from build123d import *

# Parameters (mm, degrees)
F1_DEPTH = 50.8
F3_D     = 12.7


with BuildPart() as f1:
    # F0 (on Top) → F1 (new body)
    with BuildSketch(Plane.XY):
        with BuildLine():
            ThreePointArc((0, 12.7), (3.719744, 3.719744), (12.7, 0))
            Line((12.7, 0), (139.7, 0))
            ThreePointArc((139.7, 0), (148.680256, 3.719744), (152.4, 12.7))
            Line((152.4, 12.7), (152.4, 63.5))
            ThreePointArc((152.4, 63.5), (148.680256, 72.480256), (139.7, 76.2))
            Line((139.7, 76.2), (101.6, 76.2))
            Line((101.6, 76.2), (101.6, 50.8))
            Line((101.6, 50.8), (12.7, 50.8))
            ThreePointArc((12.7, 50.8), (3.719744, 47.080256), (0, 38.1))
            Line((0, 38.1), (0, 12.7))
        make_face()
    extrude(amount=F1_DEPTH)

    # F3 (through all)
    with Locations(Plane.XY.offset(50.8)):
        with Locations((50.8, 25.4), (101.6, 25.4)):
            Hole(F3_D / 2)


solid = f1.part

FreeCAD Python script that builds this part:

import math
import FreeCAD as App
import Part
import Sketcher

V = App.Vector
Q = App.Units.Quantity

doc = App.newDocument("Part")
body = doc.addObject("PartDesign::Body", "Body")

# Sketch on XY plane
sketch1 = doc.addObject("Sketcher::SketchObject", "Sketch")
body.addObject(sketch1)
sketch1.AttachmentSupport = (doc.XY_Plane, [""])
sketch1.MapMode = "FlatFace"
sketch1.addGeometry([
    Part.ArcOfCircle(Part.Circle(V(13, 13, 0), V(0, 0, 1), 13), math.radians(-180), math.radians(-90)),  # 0
    Part.LineSegment(V(13, 0, 0), V(140, 0, 0)),  # 1
    Part.ArcOfCircle(Part.Circle(V(140, 13, 0), V(0, 0, 1), 13), math.radians(-90), math.radians(0)),  # 2
    Part.LineSegment(V(152, 13, 0), V(152, 64, 0)),  # 3
    Part.ArcOfCircle(Part.Circle(V(140, 63, 0), V(0, 0, 1), 13), math.radians(0), math.radians(90)),  # 4
    Part.LineSegment(V(140, 76, 0), V(102, 76, 0)),  # 5
    Part.LineSegment(V(102, 76, 0), V(102, 51, 0)),  # 6
    Part.LineSegment(V(102, 51, 0), V(13, 51, 0)),  # 7
    Part.ArcOfCircle(Part.Circle(V(13, 38, 0), V(0, 0, 1), 13), math.radians(90), math.radians(180)),  # 8
    Part.LineSegment(V(0, 38, 0), V(0, 13, 0)),  # 9
], False)
sketch1.addConstraint([
    Sketcher.Constraint("Tangent", 0, 2, 1, 1),
    Sketcher.Constraint("Tangent", 1, 2, 2, 1),
    Sketcher.Constraint("Tangent", 2, 2, 3, 1),
    Sketcher.Constraint("Tangent", 3, 2, 4, 1),
    Sketcher.Constraint("Tangent", 4, 2, 5, 1),
    Sketcher.Constraint("Coincident", 5, 2, 6, 1),
    Sketcher.Constraint("Coincident", 6, 2, 7, 1),
    Sketcher.Constraint("Tangent", 7, 2, 8, 1),
    Sketcher.Constraint("Tangent", 8, 2, 9, 1),
    Sketcher.Constraint("Tangent", 9, 2, 0, 1),
    Sketcher.Constraint("Horizontal", 1),
    Sketcher.Constraint("Vertical", 3),
    Sketcher.Constraint("Horizontal", 5),
    Sketcher.Constraint("Vertical", 6),
    Sketcher.Constraint("Horizontal", 7),
    Sketcher.Constraint("Vertical", 9),
    Sketcher.Constraint("Equal", 0, 2),
    Sketcher.Constraint("Equal", 2, 4),
    Sketcher.Constraint("Equal", 4, 8),
    Sketcher.Constraint("PointOnObject", 0, 2, -1),
    Sketcher.Constraint("PointOnObject", 8, 2, -2),
    Sketcher.Constraint("Equal", 6, 9),
    Sketcher.Constraint("Radius", 0, Q("0.5 in")),
    Sketcher.Constraint("DistanceX", 1, 1, 1, 2, Q("5 in")),
    Sketcher.Constraint("DistanceY", 3, 1, 3, 2, Q("2 in")),
    Sketcher.Constraint("DistanceX", 5, 2, 5, 1, Q("1.5 in")),
])
pad1 = doc.addObject("PartDesign::Pad", "Pad")
body.addObject(pad1)
pad1.Profile = sketch1
pad1.Length = Q("2 in")

# Sketch on XY plane
sketch2 = doc.addObject("Sketcher::SketchObject", "Sketch001")
body.addObject(sketch2)
sketch2.AttachmentSupport = (doc.XY_Plane, [""])
sketch2.MapMode = "FlatFace"
sketch2.AttachmentOffset = App.Placement(V(0, 0, 2 * 25.4), App.Rotation())
sketch2.addGeometry([
    Part.Circle(V(51, 25, 0), V(0, 0, 1), 6),
    Part.Circle(V(102, 25, 0), V(0, 0, 1), 6),
], False)
sketch2.addConstraint([
    Sketcher.Constraint("Equal", 0, 1),
    Sketcher.Constraint("Horizontal", 0, 3, 1, 3),
    Sketcher.Constraint("Diameter", 0, Q("0.5 in")),
    Sketcher.Constraint("DistanceX", -1, 1, 0, 3, Q("2 in")),
    Sketcher.Constraint("DistanceY", -1, 1, 0, 3, Q("1 in")),
    Sketcher.Constraint("DistanceX", -1, 1, 1, 3, Q("4 in")),
])
doc.recompute()
hole = doc.addObject("PartDesign::Hole", "Hole")
body.addObject(hole)
hole.Profile = sketch2
hole.ThreadType = "None"
hole.Diameter = Q("0.5 in")
hole.DepthType = "ThroughAll"

doc.recompute()
